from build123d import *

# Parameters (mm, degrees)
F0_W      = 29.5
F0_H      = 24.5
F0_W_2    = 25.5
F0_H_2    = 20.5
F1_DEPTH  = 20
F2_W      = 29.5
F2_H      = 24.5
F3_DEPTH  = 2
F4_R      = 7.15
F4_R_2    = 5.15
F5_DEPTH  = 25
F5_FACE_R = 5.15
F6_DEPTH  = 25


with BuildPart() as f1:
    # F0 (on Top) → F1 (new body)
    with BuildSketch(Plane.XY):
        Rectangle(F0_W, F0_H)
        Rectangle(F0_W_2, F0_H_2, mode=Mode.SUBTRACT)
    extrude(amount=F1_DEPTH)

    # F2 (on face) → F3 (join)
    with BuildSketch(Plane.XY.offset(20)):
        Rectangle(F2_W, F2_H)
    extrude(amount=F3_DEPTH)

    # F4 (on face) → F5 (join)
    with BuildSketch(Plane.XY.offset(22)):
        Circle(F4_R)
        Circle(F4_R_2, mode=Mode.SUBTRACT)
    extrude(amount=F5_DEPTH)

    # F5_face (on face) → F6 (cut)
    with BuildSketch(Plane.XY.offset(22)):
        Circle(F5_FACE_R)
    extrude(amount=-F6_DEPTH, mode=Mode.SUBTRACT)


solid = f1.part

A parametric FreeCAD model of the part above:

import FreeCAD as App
import Part
import Sketcher
from FreeCAD import Vector


def add_polygon(sketch, points):
    """Adds a closed chain of lines whose ends are joined by coincident constraints."""
    first, n = sketch.GeometryCount, len(points)
    for a, b in zip(points, points[1:] + points[:1]):
        sketch.addGeometry(Part.LineSegment(App.Vector(*a, 0), App.Vector(*b, 0)), False)
    for i in range(n):
        sketch.addConstraint(Sketcher.Constraint("Coincident", first + i, 2, first + (i + 1) % n, 1))

doc = App.newDocument("Part")
body = doc.addObject("PartDesign::Body", "Body")

# Sketch on XY plane
sketch1 = body.newObject("Sketcher::SketchObject", "Sketch")
sketch1.AttachmentSupport = (doc.getObject("XY_Plane"), [""])
sketch1.MapMode = "FlatFace"
add_polygon(sketch1, [(-15, 12), (-15, -12), (15, -12), (15, 12)])  # lines 0-3
add_polygon(sketch1, [(13, -10), (-13, -10), (-13, 10), (13, 10)])  # lines 4-7
sketch1.addConstraint([
    Sketcher.Constraint("Vertical", 0),
    Sketcher.Constraint("Horizontal", 1),
    Sketcher.Constraint("Vertical", 2),
    Sketcher.Constraint("Horizontal", 3),
    Sketcher.Constraint("Horizontal", 4),
    Sketcher.Constraint("Vertical", 5),
    Sketcher.Constraint("Horizontal", 6),
    Sketcher.Constraint("Vertical", 7),
    Sketcher.Constraint("Symmetric", 0, 2, 2, 2, -1, 1),
    Sketcher.Constraint("Symmetric", 4, 2, 6, 2, -1, 1),
    Sketcher.Constraint("DistanceX", 1, 1, 1, 2, 29.5),
    Sketcher.Constraint("DistanceX", 4, 2, 4, 1, 25.5),
    Sketcher.Constraint("DistanceY", 0, 2, 0, 1, 24.5),
    Sketcher.Constraint("DistanceY", 5, 1, 5, 2, 20.5),
])
pad1 = body.newObject("PartDesign::Pad", "Pad")
pad1.Profile = sketch1
pad1.Length = 20

# Sketch on XY plane
sketch2 = body.newObject("Sketcher::SketchObject", "Sketch001")
sketch2.AttachmentSupport = (doc.getObject("XY_Plane"), [""])
sketch2.MapMode = "FlatFace"
sketch2.AttachmentOffset = App.Placement(Vector(0, 0, 20), App.Rotation())
add_polygon(sketch2, [(-15, 12), (-15, -12), (15, -12), (15, 12)])  # lines 0-3
sketch2.addConstraint([
    Sketcher.Constraint("Vertical", 0),
    Sketcher.Constraint("Horizontal", 1),
    Sketcher.Constraint("Vertical", 2),
    Sketcher.Constraint("Horizontal", 3),
    Sketcher.Constraint("Symmetric", 0, 2, 2, 2, -1, 1),
    Sketcher.Constraint("DistanceX", 1, 1, 1, 2, 29.5),
    Sketcher.Constraint("DistanceY", 0, 2, 0, 1, 24.5),
])
pad2 = body.newObject("PartDesign::Pad", "Pad001")
pad2.Profile = sketch2
pad2.Length = 2

# Sketch on XY plane
sketch3 = body.newObject("Sketcher::SketchObject", "Sketch002")
sketch3.AttachmentSupport = (doc.getObject("XY_Plane"), [""])
sketch3.MapMode = "FlatFace"
sketch3.AttachmentOffset = App.Placement(Vector(0, 0, 22), App.Rotation())
sketch3.addGeometry([
    Part.Circle(Vector(0, 0, 0), Vector(0, 0, 1), 7),
    Part.Circle(Vector(0, 0, 0), Vector(0, 0, 1), 5),
], False)
sketch3.addConstraint([
    Sketcher.Constraint("Coincident", 0, 3, -1, 1),
    Sketcher.Constraint("Coincident", 1, 3, -1, 1),
    Sketcher.Constraint("Diameter", 0, 14.3),
    Sketcher.Constraint("Diameter", 1, 10.3),
])
pad3 = body.newObject("PartDesign::Pad", "Pad002")
pad3.Profile = sketch3
pad3.Length = 25

# Sketch on XY plane
sketch4 = body.newObject("Sketcher::SketchObject", "Sketch003")
sketch4.AttachmentSupport = (doc.getObject("XY_Plane"), [""])
sketch4.MapMode = "FlatFace"
sketch4.AttachmentOffset = App.Placement(Vector(0, 0, 22), App.Rotation())
sketch4.addGeometry(Part.Circle(Vector(0, 0, 0), Vector(0, 0, 1), 5), False)
sketch4.addConstraint([
    Sketcher.Constraint("Coincident", 0, 3, -1, 1),
    Sketcher.Constraint("Diameter", 0, 10.3),
])
pocket1 = body.newObject("PartDesign::Pocket", "Pocket")
pocket1.Profile = sketch4
pocket1.Length = 25

doc.recompute()
